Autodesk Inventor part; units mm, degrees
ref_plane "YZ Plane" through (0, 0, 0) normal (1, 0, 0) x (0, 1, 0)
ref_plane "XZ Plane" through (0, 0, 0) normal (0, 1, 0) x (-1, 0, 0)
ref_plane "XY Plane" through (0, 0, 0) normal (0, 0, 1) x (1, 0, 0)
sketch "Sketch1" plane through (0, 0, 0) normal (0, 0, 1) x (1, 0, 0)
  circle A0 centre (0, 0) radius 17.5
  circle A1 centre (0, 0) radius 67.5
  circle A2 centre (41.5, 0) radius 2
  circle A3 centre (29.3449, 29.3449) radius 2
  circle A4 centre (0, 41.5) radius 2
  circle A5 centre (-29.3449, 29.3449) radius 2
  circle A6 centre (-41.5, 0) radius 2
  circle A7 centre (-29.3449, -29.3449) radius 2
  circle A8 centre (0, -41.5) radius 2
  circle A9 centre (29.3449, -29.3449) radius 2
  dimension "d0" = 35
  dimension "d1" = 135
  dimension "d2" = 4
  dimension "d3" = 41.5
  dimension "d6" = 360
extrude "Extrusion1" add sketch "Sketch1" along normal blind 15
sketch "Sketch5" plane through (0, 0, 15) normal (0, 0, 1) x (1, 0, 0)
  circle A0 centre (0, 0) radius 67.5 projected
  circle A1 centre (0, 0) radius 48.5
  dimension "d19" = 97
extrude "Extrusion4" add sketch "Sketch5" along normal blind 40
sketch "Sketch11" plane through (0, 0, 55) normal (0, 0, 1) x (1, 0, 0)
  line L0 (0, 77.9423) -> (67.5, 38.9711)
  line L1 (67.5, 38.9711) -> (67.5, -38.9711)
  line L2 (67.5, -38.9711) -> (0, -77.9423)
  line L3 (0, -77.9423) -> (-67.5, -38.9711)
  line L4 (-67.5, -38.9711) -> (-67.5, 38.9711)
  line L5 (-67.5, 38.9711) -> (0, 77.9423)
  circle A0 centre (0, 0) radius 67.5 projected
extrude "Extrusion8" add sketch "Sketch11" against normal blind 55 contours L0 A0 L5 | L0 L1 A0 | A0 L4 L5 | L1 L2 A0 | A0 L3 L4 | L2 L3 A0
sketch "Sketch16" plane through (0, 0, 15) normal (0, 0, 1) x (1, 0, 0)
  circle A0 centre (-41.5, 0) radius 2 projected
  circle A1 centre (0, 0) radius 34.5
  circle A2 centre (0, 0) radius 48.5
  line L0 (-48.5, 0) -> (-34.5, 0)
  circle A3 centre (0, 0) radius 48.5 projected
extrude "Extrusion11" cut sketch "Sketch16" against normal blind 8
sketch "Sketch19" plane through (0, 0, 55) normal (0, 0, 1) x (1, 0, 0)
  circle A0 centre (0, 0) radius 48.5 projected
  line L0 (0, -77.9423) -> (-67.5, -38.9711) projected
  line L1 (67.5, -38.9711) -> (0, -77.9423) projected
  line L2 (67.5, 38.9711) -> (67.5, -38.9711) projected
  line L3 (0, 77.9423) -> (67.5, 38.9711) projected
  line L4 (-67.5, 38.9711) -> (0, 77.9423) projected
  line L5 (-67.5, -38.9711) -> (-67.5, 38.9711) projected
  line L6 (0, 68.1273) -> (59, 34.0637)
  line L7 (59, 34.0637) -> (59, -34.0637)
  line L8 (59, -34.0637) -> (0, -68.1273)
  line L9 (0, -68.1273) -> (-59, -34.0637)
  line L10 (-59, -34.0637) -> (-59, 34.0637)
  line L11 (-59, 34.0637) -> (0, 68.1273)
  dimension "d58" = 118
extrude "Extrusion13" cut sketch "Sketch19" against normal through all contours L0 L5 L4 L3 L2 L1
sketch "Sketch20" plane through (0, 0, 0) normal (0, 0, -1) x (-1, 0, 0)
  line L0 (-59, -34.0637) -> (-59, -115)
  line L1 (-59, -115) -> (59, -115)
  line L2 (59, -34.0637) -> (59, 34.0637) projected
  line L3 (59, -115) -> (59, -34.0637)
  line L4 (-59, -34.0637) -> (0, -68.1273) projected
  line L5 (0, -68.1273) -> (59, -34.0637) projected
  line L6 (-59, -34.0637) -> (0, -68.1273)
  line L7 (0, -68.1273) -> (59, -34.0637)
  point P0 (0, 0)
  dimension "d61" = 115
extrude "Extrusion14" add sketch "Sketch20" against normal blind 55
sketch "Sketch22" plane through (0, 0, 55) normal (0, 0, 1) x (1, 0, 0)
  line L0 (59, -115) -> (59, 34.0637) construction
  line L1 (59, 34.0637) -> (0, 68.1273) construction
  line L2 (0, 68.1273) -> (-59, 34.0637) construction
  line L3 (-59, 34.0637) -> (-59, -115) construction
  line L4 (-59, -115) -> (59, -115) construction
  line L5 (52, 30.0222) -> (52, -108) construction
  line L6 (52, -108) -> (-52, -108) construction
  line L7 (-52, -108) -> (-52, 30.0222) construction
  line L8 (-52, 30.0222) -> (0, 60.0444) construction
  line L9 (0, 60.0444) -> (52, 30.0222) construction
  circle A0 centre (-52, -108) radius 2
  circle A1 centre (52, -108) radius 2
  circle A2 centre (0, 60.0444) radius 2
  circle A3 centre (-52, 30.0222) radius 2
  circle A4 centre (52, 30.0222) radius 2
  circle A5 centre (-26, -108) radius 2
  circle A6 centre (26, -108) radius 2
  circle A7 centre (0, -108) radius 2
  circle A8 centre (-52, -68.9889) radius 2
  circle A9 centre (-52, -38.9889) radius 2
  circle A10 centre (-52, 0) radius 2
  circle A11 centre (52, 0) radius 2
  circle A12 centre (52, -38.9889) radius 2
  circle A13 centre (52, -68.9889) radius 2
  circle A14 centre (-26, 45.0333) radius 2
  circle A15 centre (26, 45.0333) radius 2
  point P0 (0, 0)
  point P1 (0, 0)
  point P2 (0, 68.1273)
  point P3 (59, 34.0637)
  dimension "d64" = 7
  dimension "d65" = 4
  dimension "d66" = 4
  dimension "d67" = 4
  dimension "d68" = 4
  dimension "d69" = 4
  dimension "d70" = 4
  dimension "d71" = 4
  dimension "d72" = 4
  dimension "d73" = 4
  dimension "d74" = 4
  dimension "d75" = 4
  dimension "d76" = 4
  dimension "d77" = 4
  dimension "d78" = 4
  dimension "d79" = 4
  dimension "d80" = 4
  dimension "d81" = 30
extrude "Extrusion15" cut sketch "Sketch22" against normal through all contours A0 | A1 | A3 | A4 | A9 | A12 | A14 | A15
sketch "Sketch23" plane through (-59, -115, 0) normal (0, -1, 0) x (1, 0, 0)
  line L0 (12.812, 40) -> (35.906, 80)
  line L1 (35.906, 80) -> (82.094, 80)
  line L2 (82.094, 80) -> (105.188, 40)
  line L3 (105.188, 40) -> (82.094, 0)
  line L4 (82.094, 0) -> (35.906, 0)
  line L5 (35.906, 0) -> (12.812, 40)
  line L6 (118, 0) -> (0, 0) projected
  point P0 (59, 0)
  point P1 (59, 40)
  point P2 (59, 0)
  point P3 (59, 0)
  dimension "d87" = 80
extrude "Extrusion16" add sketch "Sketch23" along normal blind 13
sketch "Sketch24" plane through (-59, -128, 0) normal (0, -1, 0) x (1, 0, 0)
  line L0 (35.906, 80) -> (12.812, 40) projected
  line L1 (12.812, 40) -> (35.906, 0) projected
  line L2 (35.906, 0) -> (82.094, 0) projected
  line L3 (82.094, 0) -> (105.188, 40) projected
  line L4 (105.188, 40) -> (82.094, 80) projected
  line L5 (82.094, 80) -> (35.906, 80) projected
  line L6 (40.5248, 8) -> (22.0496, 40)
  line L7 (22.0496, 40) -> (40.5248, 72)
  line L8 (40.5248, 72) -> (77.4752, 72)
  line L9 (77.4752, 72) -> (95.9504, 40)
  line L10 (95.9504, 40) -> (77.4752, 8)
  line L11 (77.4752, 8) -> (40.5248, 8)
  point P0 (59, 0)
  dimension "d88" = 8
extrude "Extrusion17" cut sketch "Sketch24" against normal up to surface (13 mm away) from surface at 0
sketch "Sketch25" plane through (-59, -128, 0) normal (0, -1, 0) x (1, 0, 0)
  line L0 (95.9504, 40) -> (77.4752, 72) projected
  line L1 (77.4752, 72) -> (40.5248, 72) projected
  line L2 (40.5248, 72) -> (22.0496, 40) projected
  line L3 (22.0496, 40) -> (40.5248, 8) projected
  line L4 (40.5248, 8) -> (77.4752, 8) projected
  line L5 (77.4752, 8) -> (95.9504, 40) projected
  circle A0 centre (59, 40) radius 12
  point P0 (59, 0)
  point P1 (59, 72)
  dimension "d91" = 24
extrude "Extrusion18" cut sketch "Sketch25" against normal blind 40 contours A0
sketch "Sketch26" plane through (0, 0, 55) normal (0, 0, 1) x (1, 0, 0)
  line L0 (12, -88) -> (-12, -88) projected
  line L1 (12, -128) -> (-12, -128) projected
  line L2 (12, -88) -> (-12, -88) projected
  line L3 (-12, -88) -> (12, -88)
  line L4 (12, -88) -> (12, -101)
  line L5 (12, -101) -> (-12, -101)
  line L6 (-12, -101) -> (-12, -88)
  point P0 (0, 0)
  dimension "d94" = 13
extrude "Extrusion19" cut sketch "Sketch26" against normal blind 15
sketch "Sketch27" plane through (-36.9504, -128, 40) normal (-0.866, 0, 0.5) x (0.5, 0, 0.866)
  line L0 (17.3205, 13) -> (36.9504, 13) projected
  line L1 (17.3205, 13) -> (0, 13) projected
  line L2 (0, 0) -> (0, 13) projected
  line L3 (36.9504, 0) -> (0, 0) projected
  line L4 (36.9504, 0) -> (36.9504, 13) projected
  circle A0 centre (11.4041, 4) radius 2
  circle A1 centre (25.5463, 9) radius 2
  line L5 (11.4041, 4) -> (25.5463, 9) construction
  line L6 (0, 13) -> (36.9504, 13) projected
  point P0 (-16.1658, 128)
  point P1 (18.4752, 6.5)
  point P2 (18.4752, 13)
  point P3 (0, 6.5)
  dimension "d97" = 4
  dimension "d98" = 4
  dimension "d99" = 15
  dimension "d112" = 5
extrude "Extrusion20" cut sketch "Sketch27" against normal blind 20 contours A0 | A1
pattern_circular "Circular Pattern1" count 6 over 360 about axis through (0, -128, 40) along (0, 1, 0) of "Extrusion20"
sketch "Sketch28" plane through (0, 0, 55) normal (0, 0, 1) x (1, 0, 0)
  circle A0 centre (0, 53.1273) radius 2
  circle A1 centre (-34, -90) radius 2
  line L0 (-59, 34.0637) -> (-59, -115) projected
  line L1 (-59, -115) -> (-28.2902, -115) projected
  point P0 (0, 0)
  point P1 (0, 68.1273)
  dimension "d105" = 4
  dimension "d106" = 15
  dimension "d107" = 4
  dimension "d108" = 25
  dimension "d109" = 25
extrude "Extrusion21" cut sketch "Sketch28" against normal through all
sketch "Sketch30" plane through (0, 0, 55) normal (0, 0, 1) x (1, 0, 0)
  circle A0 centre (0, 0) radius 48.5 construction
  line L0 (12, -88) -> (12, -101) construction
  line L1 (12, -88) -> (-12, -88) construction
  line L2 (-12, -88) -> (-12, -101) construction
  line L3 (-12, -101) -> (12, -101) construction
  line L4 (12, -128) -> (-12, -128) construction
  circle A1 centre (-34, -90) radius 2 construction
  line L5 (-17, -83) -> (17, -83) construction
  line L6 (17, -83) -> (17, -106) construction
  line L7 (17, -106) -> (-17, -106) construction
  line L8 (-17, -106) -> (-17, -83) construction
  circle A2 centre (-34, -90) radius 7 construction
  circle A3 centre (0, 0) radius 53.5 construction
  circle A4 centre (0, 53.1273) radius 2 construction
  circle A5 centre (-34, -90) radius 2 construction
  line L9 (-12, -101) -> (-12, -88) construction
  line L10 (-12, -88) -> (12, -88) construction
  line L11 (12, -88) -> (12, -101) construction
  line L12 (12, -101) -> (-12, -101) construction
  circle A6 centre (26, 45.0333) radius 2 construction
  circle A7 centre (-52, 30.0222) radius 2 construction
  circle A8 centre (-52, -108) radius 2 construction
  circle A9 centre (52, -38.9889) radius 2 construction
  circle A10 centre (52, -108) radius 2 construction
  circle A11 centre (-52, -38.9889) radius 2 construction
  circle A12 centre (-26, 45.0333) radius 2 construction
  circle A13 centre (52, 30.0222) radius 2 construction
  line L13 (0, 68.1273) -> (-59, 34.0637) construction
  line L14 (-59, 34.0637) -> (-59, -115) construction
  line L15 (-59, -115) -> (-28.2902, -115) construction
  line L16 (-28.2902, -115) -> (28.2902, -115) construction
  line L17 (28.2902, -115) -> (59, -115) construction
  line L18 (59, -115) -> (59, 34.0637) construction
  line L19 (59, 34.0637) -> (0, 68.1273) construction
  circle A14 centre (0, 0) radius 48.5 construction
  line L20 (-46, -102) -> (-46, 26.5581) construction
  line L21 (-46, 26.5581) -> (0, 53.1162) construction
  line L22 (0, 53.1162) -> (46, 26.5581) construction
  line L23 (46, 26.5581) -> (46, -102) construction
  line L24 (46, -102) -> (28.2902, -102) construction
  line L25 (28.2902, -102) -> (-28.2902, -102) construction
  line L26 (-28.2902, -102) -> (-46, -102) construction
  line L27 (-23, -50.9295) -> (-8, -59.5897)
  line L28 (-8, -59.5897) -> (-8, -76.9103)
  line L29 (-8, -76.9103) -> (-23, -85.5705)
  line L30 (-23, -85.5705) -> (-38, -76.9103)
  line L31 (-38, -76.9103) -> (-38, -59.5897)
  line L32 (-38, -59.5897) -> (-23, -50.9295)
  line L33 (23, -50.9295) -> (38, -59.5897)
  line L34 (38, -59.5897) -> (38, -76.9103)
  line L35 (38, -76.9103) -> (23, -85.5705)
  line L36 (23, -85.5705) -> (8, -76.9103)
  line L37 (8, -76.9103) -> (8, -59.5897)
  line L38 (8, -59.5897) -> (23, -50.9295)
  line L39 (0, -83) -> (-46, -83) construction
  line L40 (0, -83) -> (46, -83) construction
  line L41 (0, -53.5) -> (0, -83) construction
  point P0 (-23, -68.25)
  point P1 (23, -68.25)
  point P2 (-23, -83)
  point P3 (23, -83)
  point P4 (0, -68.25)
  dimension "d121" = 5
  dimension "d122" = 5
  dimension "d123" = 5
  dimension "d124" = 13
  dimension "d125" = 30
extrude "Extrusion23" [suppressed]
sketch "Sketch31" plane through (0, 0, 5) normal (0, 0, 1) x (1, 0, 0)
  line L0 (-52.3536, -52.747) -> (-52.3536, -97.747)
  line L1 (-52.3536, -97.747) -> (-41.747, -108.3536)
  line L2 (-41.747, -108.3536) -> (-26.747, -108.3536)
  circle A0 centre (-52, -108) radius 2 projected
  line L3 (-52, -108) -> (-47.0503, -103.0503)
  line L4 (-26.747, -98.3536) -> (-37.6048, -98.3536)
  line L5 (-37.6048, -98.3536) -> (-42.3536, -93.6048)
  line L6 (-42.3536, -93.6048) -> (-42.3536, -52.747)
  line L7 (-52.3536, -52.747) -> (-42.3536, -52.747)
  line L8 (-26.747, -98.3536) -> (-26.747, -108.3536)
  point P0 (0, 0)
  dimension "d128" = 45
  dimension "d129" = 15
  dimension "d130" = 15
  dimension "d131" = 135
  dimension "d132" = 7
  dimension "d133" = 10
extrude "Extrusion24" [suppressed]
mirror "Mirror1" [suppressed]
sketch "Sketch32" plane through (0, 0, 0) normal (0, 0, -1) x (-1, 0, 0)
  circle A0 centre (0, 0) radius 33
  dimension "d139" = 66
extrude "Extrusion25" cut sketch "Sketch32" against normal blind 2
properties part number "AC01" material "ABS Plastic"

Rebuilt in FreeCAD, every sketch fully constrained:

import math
import FreeCAD as App
import Part
import Sketcher
from FreeCAD import Vector
Q = App.Units.Quantity

doc = App.newDocument("Part")
body = doc.addObject("PartDesign::Body", "Body")

sketch1 = doc.addObject("Sketcher::SketchObject", "Sketch")
body.addObject(sketch1)
sketch1.AttachmentSupport = (doc.XY_Plane, [""])
sketch1.MapMode = "FlatFace"
sketch1.addGeometry([
    Part.Circle(Vector(0, 0, 0), Vector(0, 0, 1), 67.5),
    Part.Circle(Vector(-29.3, -29.3, 0), Vector(0, 0, 1), 2),
    Part.Circle(Vector(0, -41.5, 0), Vector(0, 0, 1), 2),
    Part.Circle(Vector(29.3, -29.3, 0), Vector(0, 0, 1), 2),
    Part.Circle(Vector(-41.5, 0, 0), Vector(0, 0, 1), 2),
    Part.Circle(Vector(-29.3, 29.3, 0), Vector(0, 0, 1), 2),
    Part.Circle(Vector(0, 0, 0), Vector(0, 0, 1), 17.5),
    Part.Circle(Vector(29.3, 29.3, 0), Vector(0, 0, 1), 2),
    Part.Circle(Vector(41.5, 0, 0), Vector(0, 0, 1), 2),
    Part.Circle(Vector(0, 41.5, 0), Vector(0, 0, 1), 2),
], False)
sketch1.addConstraint([
    Sketcher.Constraint("Coincident", 0, 3, -1, 1),
    Sketcher.Constraint("Coincident", 6, 3, -1, 1),
    Sketcher.Constraint("Equal", 1, 2),
    Sketcher.Constraint("Equal", 2, 3),
    Sketcher.Constraint("Equal", 3, 4),
    Sketcher.Constraint("Equal", 4, 5),
    Sketcher.Constraint("Equal", 5, 7),
    Sketcher.Constraint("Equal", 7, 8),
    Sketcher.Constraint("Equal", 8, 9),
    Sketcher.Constraint("Symmetric", 3, 3, 5, 3, -1, 1),
    Sketcher.Constraint("Symmetric", 1, 3, 7, 3, -1, 1),
    Sketcher.Constraint("Symmetric", 4, 3, 8, 3, -1, 1),
    Sketcher.Constraint("Symmetric", 2, 3, 9, 3, -1, 1),
    Sketcher.Constraint("Symmetric", 1, 3, 3, 3, -2),
    Sketcher.Constraint("PointOnObject", 2, 3, -2),
    Sketcher.Constraint("PointOnObject", 4, 3, -1),
    Sketcher.Constraint("Diameter", 0, Q("135 mm")),
    Sketcher.Constraint("Diameter", 1, Q("4 mm")),
    Sketcher.Constraint("Diameter", 6, Q("35 mm")),
    Sketcher.Constraint("DistanceY", 2, 3, -1, 1, Q("41.5 mm")),
    Sketcher.Constraint("DistanceX", 4, 3, -1, 1, Q("41.5 mm")),
    Sketcher.Constraint("DistanceX", 1, 3, -1, 1, Q("29.345 mm")),
    Sketcher.Constraint("DistanceY", 1, 3, -1, 1, Q("29.345 mm")),
])
pad1 = doc.addObject("PartDesign::Pad", "Pad")
body.addObject(pad1)
pad1.Profile = sketch1
pad1.Length = 15

sketch2 = doc.addObject("Sketcher::SketchObject", "Sketch001")
body.addObject(sketch2)
sketch2.AttachmentSupport = (doc.XY_Plane, [""])
sketch2.MapMode = "FlatFace"
sketch2.AttachmentOffset = App.Placement(Vector(0, 0, 15), App.Rotation())
sketch2.addGeometry([
    Part.Circle(Vector(0, 0, 0), Vector(0, 0, 1), 68),
    Part.Circle(Vector(0, 0, 0), Vector(0, 0, 1), 48),
], False)
sketch2.addConstraint([
    Sketcher.Constraint("Coincident", 0, 3, -1, 1),
    Sketcher.Constraint("Coincident", 1, 3, -1, 1),
    Sketcher.Constraint("Diameter", 1, Q("97 mm")),
    Sketcher.Constraint("Diameter", 0, Q("135 mm")),
])
pad2 = doc.addObject("PartDesign::Pad", "Pad001")
body.addObject(pad2)
pad2.Profile = sketch2
pad2.Length = 40

sketch3 = doc.addObject("Sketcher::SketchObject", "Sketch002")
body.addObject(sketch3)
sketch3.AttachmentSupport = (doc.XY_Plane, [""])
sketch3.MapMode = "FlatFace"
sketch3.AttachmentOffset = App.Placement(Vector(0, 0, 55), App.Rotation())
sketch3.addGeometry([
    Part.LineSegment(Vector(34, 58, 0), Vector(0, 78, 0)),
    Part.LineSegment(Vector(0, 78, 0), Vector(-34, 58, 0)),
    Part.ArcOfCircle(Part.Circle(Vector(0, 0, 0), Vector(0, 0, 1), 68), math.radians(60), math.radians(120)),
    Part.LineSegment(Vector(68, 39, 0), Vector(34, 58, 0)),
    Part.ArcOfCircle(Part.Circle(Vector(0, 0, 0), Vector(0, 0, 1), 68), math.radians(0), math.radians(60)),
    Part.LineSegment(Vector(68, 0, 0), Vector(68, 39, 0)),
    Part.ArcOfCircle(Part.Circle(Vector(0, 0, 0), Vector(0, 0, 1), 68), math.radians(120), math.radians(180)),
    Part.LineSegment(Vector(-34, 58, 0), Vector(-68, 39, 0)),
    Part.LineSegment(Vector(-68, 39, 0), Vector(-68, 0, 0)),
    Part.LineSegment(Vector(68, -39, 0), Vector(68, 0, 0)),
    Part.ArcOfCircle(Part.Circle(Vector(0, 0, 0), Vector(0, 0, 1), 68), math.radians(-60), math.radians(0)),
    Part.LineSegment(Vector(34, -58, 0), Vector(68, -39, 0)),
    Part.ArcOfCircle(Part.Circle(Vector(0, 0, 0), Vector(0, 0, 1), 68), math.radians(-180), math.radians(-120)),
    Part.LineSegment(Vector(-68, 0, 0), Vector(-68, -39, 0)),
    Part.LineSegment(Vector(-68, -39, 0), Vector(-34, -58, 0)),
    Part.LineSegment(Vector(0, -78, 0), Vector(34, -58, 0)),
    Part.ArcOfCircle(Part.Circle(Vector(0, 0, 0), Vector(0, 0, 1), 68), math.radians(-120), math.radians(-60)),
    Part.LineSegment(Vector(-34, -58, 0), Vector(0, -78, 0)),
], False)
sketch3.addConstraint([
    Sketcher.Constraint("Coincident", 0, 2, 1, 1),
    Sketcher.Constraint("Tangent", 1, 2, 2, 2),
    Sketcher.Constraint("Tangent", 2, 1, 0, 1),
    Sketcher.Constraint("Tangent", 3, 2, 4, 2),
    Sketcher.Constraint("Tangent", 4, 1, 5, 1),
    Sketcher.Constraint("Coincident", 5, 2, 3, 1),
    Sketcher.Constraint("Tangent", 6, 1, 7, 1),
    Sketcher.Constraint("Coincident", 7, 2, 8, 1),
    Sketcher.Constraint("Tangent", 8, 2, 6, 2),
    Sketcher.Constraint("Tangent", 9, 2, 10, 2),
    Sketcher.Constraint("Tangent", 10, 1, 11, 1),
    Sketcher.Constraint("Coincident", 11, 2, 9, 1),
    Sketcher.Constraint("Tangent", 12, 1, 13, 1),
    Sketcher.Constraint("Coincident", 13, 2, 14, 1),
    Sketcher.Constraint("Tangent", 14, 2, 12, 2),
    Sketcher.Constraint("Tangent", 15, 2, 16, 2),
    Sketcher.Constraint("Tangent", 16, 1, 17, 1),
    Sketcher.Constraint("Coincident", 17, 2, 15, 1),
    Sketcher.Constraint("Vertical", 5),
    Sketcher.Constraint("Vertical", 8),
    Sketcher.Constraint("Vertical", 9),
    Sketcher.Constraint("Vertical", 13),
    Sketcher.Constraint("Coincident", 2, 3, -1, 1),
    Sketcher.Constraint("Coincident", 4, 3, -1, 1),
    Sketcher.Constraint("Coincident", 6, 3, -1, 1),
    Sketcher.Constraint("Coincident", 10, 3, -1, 1),
    Sketcher.Constraint("Coincident", 12, 3, -1, 1),
    Sketcher.Constraint("Coincident", 16, 3, -1, 1),
    Sketcher.Constraint("Coincident", 3, 2, 2, 1),
    Sketcher.Constraint("Coincident", 6, 1, 1, 2),
    Sketcher.Constraint("Coincident", 15, 2, 10, 1),
    Sketcher.Constraint("Coincident", 16, 1, 14, 2),
    Sketcher.Constraint("Equal", 6, 10),
    Sketcher.Constraint("Symmetric", 0, 2, 17, 2, -1, 1),
    Sketcher.Constraint("PointOnObject", 0, 2, -2),
    Sketcher.Constraint("Equal", 1, 3),
    Sketcher.Constraint("Radius", 2, Q("67.5 mm")),
])
pad3 = doc.addObject("PartDesign::Pad", "Pad002")
body.addObject(pad3)
pad3.Profile = sketch3
pad3.Length = 55
pad3.Reversed = True

sketch4 = doc.addObject("Sketcher::SketchObject", "Sketch003")
body.addObject(sketch4)
sketch4.AttachmentSupport = (doc.XY_Plane, [""])
sketch4.MapMode = "FlatFace"
sketch4.AttachmentOffset = App.Placement(Vector(0, 0, 15), App.Rotation())
sketch4.addGeometry([
    Part.Circle(Vector(0, 0, 0), Vector(0, 0, 1), 48.5),
    Part.ArcOfCircle(Part.Circle(Vector(-41.5, 0, 0), Vector(0, 0, 1), 2), math.radians(0), math.radians(180)),
    Part.ArcOfCircle(Part.Circle(Vector(-41.5, 0, 0), Vector(0, 0, 1), 2), math.radians(180), math.radians(360)),
    Part.Circle(Vector(0, 0, 0), Vector(0, 0, 1), 34.5),
], False)
sketch4.addConstraint([
    Sketcher.Constraint("Tangent", 1, 1, 2, 2),
    Sketcher.Constraint("Coincident", 2, 1, 1, 2),
    Sketcher.Constraint("Coincident", 0, 3, -1, 1),
    Sketcher.Constraint("Coincident", 3, 3, -1, 1),
    Sketcher.Constraint("PointOnObject", 1, 3, -1),
    Sketcher.Constraint("PointOnObject", 1, 1, -1),
    Sketcher.Constraint("PointOnObject", 2, 1, -1),
    Sketcher.Constraint("Diameter", 0, Q("97 mm")),
    Sketcher.Constraint("Diameter", 3, Q("69 mm")),
    Sketcher.Constraint("Radius", 1, Q("2 mm")),
    Sketcher.Constraint("DistanceX", 1, 3, -1, 1, Q("41.5 mm")),
])
pocket1 = doc.addObject("PartDesign::Pocket", "Pocket")
body.addObject(pocket1)
pocket1.Profile = sketch4
pocket1.Length = 8

sketch5 = doc.addObject("Sketcher::SketchObject", "Sketch004")
body.addObject(sketch5)
sketch5.AttachmentSupport = (doc.XY_Plane, [""])
sketch5.MapMode = "FlatFace"
sketch5.AttachmentOffset = App.Placement(Vector(0, 0, 55), App.Rotation())
sketch5.addGeometry([
    Part.LineSegment(Vector(-68, -39, 0), Vector(0, -78, 0)),
    Part.LineSegment(Vector(0, -78, 0), Vector(68, -39, 0)),
    Part.LineSegment(Vector(68, -39, 0), Vector(68, 39, 0)),
    Part.LineSegment(Vector(68, 39, 0), Vector(0, 78, 0)),
    Part.LineSegment(Vector(0, 78, 0), Vector(-68, 39, 0)),
    Part.LineSegment(Vector(-68, 39, 0), Vector(-68, -39, 0)),
    Part.LineSegment(Vector(-59, 34, 0), Vector(0, 68, 0)),
    Part.LineSegment(Vector(0, 68, 0), Vector(59, 34, 0)),
    Part.LineSegment(Vector(59, 34, 0), Vector(59, -34, 0)),
    Part.LineSegment(Vector(59, -34, 0), Vector(0, -68, 0)),
    Part.LineSegment(Vector(0, -68, 0), Vector(-59, -34, 0)),
    Part.LineSegment(Vector(-59, -34, 0), Vector(-59, 34, 0)),
], False)
sketch5.addConstraint([
    Sketcher.Constraint("Coincident", 0, 2, 1, 1),
    Sketcher.Constraint("Coincident", 1, 2, 2, 1),
    Sketcher.Constraint("Coincident", 2, 2, 3, 1),
    Sketcher.Constraint("Coincident", 3, 2, 4, 1),
    Sketcher.Constraint("Coincident", 4, 2, 5, 1),
    Sketcher.Constraint("Coincident", 5, 2, 0, 1),
    Sketcher.Constraint("Coincident", 6, 2, 7, 1),
    Sketcher.Constraint("Coincident", 7, 2, 8, 1),
    Sketcher.Constraint("Coincident", 8, 2, 9, 1),
    Sketcher.Constraint("Coincident", 9, 2, 10, 1),
    Sketcher.Constraint("Coincident", 10, 2, 11, 1),
    Sketcher.Constraint("Coincident", 11, 2, 6, 1),
    Sketcher.Constraint("Vertical", 2),
    Sketcher.Constraint("Vertical", 5),
    Sketcher.Constraint("Vertical", 8),
    Sketcher.Constraint("Vertical", 11),
    Sketcher.Constraint("Symmetric", 0, 2, 3, 2, -1, 1),
    Sketcher.Constraint("Symmetric", 1, 2, 4, 2, -1, 1),
    Sketcher.Constraint("Symmetric", 6, 2, 9, 2, -1, 1),
    Sketcher.Constraint("Symmetric", 7, 2, 10, 2, -1, 1),
    Sketcher.Constraint("PointOnObject", 0, 2, -2),
    Sketcher.Constraint("PointOnObject", 6, 2, -2),
    Sketcher.Constraint("Parallel", 0, 3),
    Sketcher.Constraint("Parallel", 4, 6),
    Sketcher.Constraint("Parallel", 3, 7),
    Sketcher.Constraint("Parallel", 6, 9),
    Sketcher.Constraint("Horizontal", 2, 2, 4, 2),
    Sketcher.Constraint("DistanceX", 10, 2, 8, 2, Q("118 mm")),
    Sketcher.Constraint("Angle", 0, Q("-30 deg")),
    Sketcher.Constraint("DistanceX", 4, 2, 2, 2, Q("135 mm")),
    Sketcher.Constraint("DistanceY", 2, 1, 2, 2, Q("77.9422 mm")),
    Sketcher.Constraint("DistanceY", 8, 2, 8, 1, Q("68.1274 mm")),
])
pocket2 = doc.addObject("PartDesign::Pocket", "Pocket001")
body.addObject(pocket2)
pocket2.Profile = sketch5
pocket2.Type = "ThroughAll"

sketch6 = doc.addObject("Sketcher::SketchObject", "Sketch005")
body.addObject(sketch6)
sketch6.AttachmentSupport = (doc.XY_Plane, [""])
sketch6.MapMode = "FlatFace"
sketch6.addGeometry([
    Part.LineSegment(Vector(0, -68, 0), Vector(59, -34, 0)),
    Part.LineSegment(Vector(59, -34, 0), Vector(59, -115, 0)),
    Part.LineSegment(Vector(59, -115, 0), Vector(-59, -115, 0)),
    Part.LineSegment(Vector(-59, -115, 0), Vector(-59, -34, 0)),
    Part.LineSegment(Vector(-59, -34, 0), Vector(0, -68, 0)),
], False)
sketch6.addConstraint([
    Sketcher.Constraint("Coincident", 0, 2, 1, 1),
    Sketcher.Constraint("Coincident", 1, 2, 2, 1),
    Sketcher.Constraint("Coincident", 2, 2, 3, 1),
    Sketcher.Constraint("Coincident", 3, 2, 4, 1),
    Sketcher.Constraint("Coincident", 4, 2, 0, 1),
    Sketcher.Constraint("Vertical", 1),
    Sketcher.Constraint("Horizontal", 2),
    Sketcher.Constraint("Vertical", 3),
    Sketcher.Constraint("Symmetric", 0, 2, 3, 2, -2),
    Sketcher.Constraint("PointOnObject", 4, 2, -2),
    Sketcher.Constraint("DistanceY", 1, 2, -1, 1, Q("115 mm")),
    Sketcher.Constraint("DistanceX", 2, 2, 2, 1, Q("118 mm")),
    Sketcher.Constraint("Angle", 0, Q("30 deg")),
    Sketcher.Constraint("DistanceY", 1, 2, 1, 1, Q("80.9363 mm")),
])
pad4 = doc.addObject("PartDesign::Pad", "Pad003")
body.addObject(pad4)
pad4.Profile = sketch6
pad4.Length = 55

sketch7 = doc.addObject("Sketcher::SketchObject", "Sketch006")
body.addObject(sketch7)
sketch7.AttachmentSupport = (doc.XY_Plane, [""])
sketch7.MapMode = "FlatFace"
sketch7.AttachmentOffset = App.Placement(Vector(0, 0, 55), App.Rotation())
sketch7.addGeometry([
    Part.Circle(Vector(-52, -108, 0), Vector(0, 0, 1), 2),
    Part.Circle(Vector(52, -108, 0), Vector(0, 0, 1), 2),
    Part.Circle(Vector(-52, 30, 0), Vector(0, 0, 1), 2),
    Part.Circle(Vector(52, 30, 0), Vector(0, 0, 1), 2),
    Part.Circle(Vector(-52, -39, 0), Vector(0, 0, 1), 2),
    Part.Circle(Vector(52, -39, 0), Vector(0, 0, 1), 2),
    Part.Circle(Vector(-26, 45, 0), Vector(0, 0, 1), 2),
    Part.Circle(Vector(26, 45, 0), Vector(0, 0, 1), 2),
], False)
sketch7.addConstraint([
    Sketcher.Constraint("Equal", 0, 1),
    Sketcher.Constraint("Equal", 1, 2),
    Sketcher.Constraint("Equal", 2, 3),
    Sketcher.Constraint("Equal", 3, 4),
    Sketcher.Constraint("Equal", 4, 5),
    Sketcher.Constraint("Equal", 5, 6),
    Sketcher.Constraint("Equal", 6, 7),
    Sketcher.Constraint("Symmetric", 0, 3, 1, 3, -2),
    Sketcher.Constraint("Symmetric", 2, 3, 3, 3, -2),
    Sketcher.Constraint("Symmetric", 4, 3, 5, 3, -2),
    Sketcher.Constraint("Symmetric", 6, 3, 7, 3, -2),
    Sketcher.Constraint("Vertical", 0, 3, 2, 3),
    Sketcher.Constraint("Vertical", 2, 3, 4, 3),
    Sketcher.Constraint("Diameter", 0, Q("4 mm")),
    Sketcher.Constraint("DistanceX", 0, 3, -1, 1, Q("52 mm")),
    Sketcher.Constraint("DistanceY", 0, 3, -1, 1, Q("108 mm")),
    Sketcher.Constraint("DistanceX", 6, 3, -1, 1, Q("26 mm")),
    Sketcher.Constraint("DistanceY", 4, 3, -1, 1, Q("38.989 mm")),
    Sketcher.Constraint("DistanceY", 4, 3, 2, 3, Q("69.011 mm")),
    Sketcher.Constraint("DistanceY", 2, 3, 6, 3, Q("15.011 mm")),
])
pocket3 = doc.addObject("PartDesign::Pocket", "Pocket002")
body.addObject(pocket3)
pocket3.Profile = sketch7
pocket3.Type = "ThroughAll"

sketch8 = doc.addObject("Sketcher::SketchObject", "Sketch007")
body.addObject(sketch8)
sketch8.AttachmentSupport = (doc.XZ_Plane, [""])
sketch8.MapMode = "FlatFace"
sketch8.AttachmentOffset = App.Placement(Vector(0, 0, 115), App.Rotation())
sketch8.addGeometry([
    Part.LineSegment(Vector(-23, 80, 0), Vector(-46, 40, 0)),
    Part.LineSegment(Vector(-46, 40, 0), Vector(-23, 0, 0)),
    Part.LineSegment(Vector(-23, 0, 0), Vector(23, 0, 0)),
    Part.LineSegment(Vector(23, 0, 0), Vector(46, 40, 0)),
    Part.LineSegment(Vector(46, 40, 0), Vector(23, 80, 0)),
    Part.LineSegment(Vector(23, 80, 0), Vector(-23, 80, 0)),
], False)
sketch8.addConstraint([
    Sketcher.Constraint("Coincident", 0, 2, 1, 1),
    Sketcher.Constraint("Coincident", 1, 2, 2, 1),
    Sketcher.Constraint("Coincident", 2, 2, 3, 1),
    Sketcher.Constraint("Coincident", 3, 2, 4, 1),
    Sketcher.Constraint("Coincident", 4, 2, 5, 1),
    Sketcher.Constraint("Coincident", 5, 2, 0, 1),
    Sketcher.Constraint("Horizontal", 2),
    Sketcher.Constraint("Horizontal", 5),
    Sketcher.Constraint("Symmetric", 1, 2, 2, 2, -1, 1),
    Sketcher.Constraint("Symmetric", 0, 2, 3, 2, -2),
    Sketcher.Constraint("Parallel", 0, 3),
    Sketcher.Constraint("Parallel", 1, 4),
    Sketcher.Constraint("Vertical", 2, 2, 4, 2),
    Sketcher.Constraint("DistanceY", -1, 1, 4, 2, Q("80 mm")),
    Sketcher.Constraint("Angle", 0, Q("-120 deg")),
    Sketcher.Constraint("DistanceX", 2, 1, 2, 2, Q("46.188 mm")),
])
pad5 = doc.addObject("PartDesign::Pad", "Pad004")
body.addObject(pad5)
pad5.Profile = sketch8
pad5.Length = 13

sketch9 = doc.addObject("Sketcher::SketchObject", "Sketch008")
body.addObject(sketch9)
sketch9.AttachmentSupport = (doc.XZ_Plane, [""])
sketch9.MapMode = "FlatFace"
sketch9.AttachmentOffset = App.Placement(Vector(0, 0, 128), App.Rotation())
sketch9.addGeometry([
    Part.LineSegment(Vector(23, 80, 0), Vector(-23, 80, 0)),
    Part.LineSegment(Vector(-23, 80, 0), Vector(-46, 40, 0)),
    Part.LineSegment(Vector(-46, 40, 0), Vector(-23, 0, 0)),
    Part.LineSegment(Vector(-23, 0, 0), Vector(23, 0, 0)),
    Part.LineSegment(Vector(23, 0, 0), Vector(46, 40, 0)),
    Part.LineSegment(Vector(46, 40, 0), Vector(23, 80, 0)),
    Part.LineSegment(Vector(18, 8, 0), Vector(-18, 8, 0)),
    Part.LineSegment(Vector(-18, 8, 0), Vector(-37, 40, 0)),
    Part.LineSegment(Vector(-37, 40, 0), Vector(-18, 72, 0)),
    Part.LineSegment(Vector(-18, 72, 0), Vector(18, 72, 0)),
    Part.LineSegment(Vector(18, 72, 0), Vector(37, 40, 0)),
    Part.LineSegment(Vector(37, 40, 0), Vector(18, 8, 0)),
], False)
sketch9.addConstraint([
    Sketcher.Constraint("Coincident", 0, 2, 1, 1),
    Sketcher.Constraint("Coincident", 1, 2, 2, 1),
    Sketcher.Constraint("Coincident", 2, 2, 3, 1),
    Sketcher.Constraint("Coincident", 3, 2, 4, 1),
    Sketcher.Constraint("Coincident", 4, 2, 5, 1),
    Sketcher.Constraint("Coincident", 5, 2, 0, 1),
    Sketcher.Constraint("Coincident", 6, 2, 7, 1),
    Sketcher.Constraint("Coincident", 7, 2, 8, 1),
    Sketcher.Constraint("Coincident", 8, 2, 9, 1),
    Sketcher.Constraint("Coincident", 9, 2, 10, 1),
    Sketcher.Constraint("Coincident", 10, 2, 11, 1),
    Sketcher.Constraint("Coincident", 11, 2, 6, 1),
    Sketcher.Constraint("Horizontal", 0),
    Sketcher.Constraint("Horizontal", 3),
    Sketcher.Constraint("Horizontal", 6),
    Sketcher.Constraint("Horizontal", 9),
    Sketcher.Constraint("Symmetric", 2, 2, 3, 2, -1, 1),
    Sketcher.Constraint("Symmetric", 1, 2, 4, 2, -2),
    Sketcher.Constraint("Symmetric", 7, 2, 10, 2, -2),
    Sketcher.Constraint("Parallel", 1, 4),
    Sketcher.Constraint("Parallel", 2, 5),
    Sketcher.Constraint("Parallel", 5, 7),
    Sketcher.Constraint("Parallel", 4, 8),
    Sketcher.Constraint("Parallel", 7, 10),
    Sketcher.Constraint("Parallel", 8, 11),
    Sketcher.Constraint("Horizontal", 4, 2, 7, 2),
    Sketcher.Constraint("Vertical", 0, 2, 2, 2),
    Sketcher.Constraint("Vertical", 6, 2, 8, 2),
    Sketcher.Constraint("DistanceY", -1, 1, 6, 2, Q("8 mm")),
    Sketcher.Constraint("Angle", 1, Q("-120 deg")),
    Sketcher.Constraint("DistanceY", -1, 1, 0, 2, Q("80 mm")),
    Sketcher.Constraint("DistanceX", 0, 2, 0, 1, Q("46.188 mm")),
    Sketcher.Constraint("DistanceX", 6, 2, 6, 1, Q("36.9504 mm")),
])
pocket4 = doc.addObject("PartDesign::Pocket", "Pocket003")
body.addObject(pocket4)
pocket4.Profile = sketch9
pocket4.Length = 13

sketch10 = doc.addObject("Sketcher::SketchObject", "Sketch009")
body.addObject(sketch10)
sketch10.AttachmentSupport = (doc.XZ_Plane, [""])
sketch10.MapMode = "FlatFace"
sketch10.AttachmentOffset = App.Placement(Vector(0, 0, 128), App.Rotation())
sketch10.addGeometry(Part.Circle(Vector(0, 40, 0), Vector(0, 0, 1), 12), False)
sketch10.addConstraint([
    Sketcher.Constraint("PointOnObject", 0, 3, -2),
    Sketcher.Constraint("Diameter", 0, Q("24 mm")),
    Sketcher.Constraint("DistanceY", -1, 1, 0, 3, Q("40 mm")),
])
pocket5 = doc.addObject("PartDesign::Pocket", "Pocket004")
body.addObject(pocket5)
pocket5.Profile = sketch10
pocket5.Length = 40

sketch11 = doc.addObject("Sketcher::SketchObject", "Sketch010")
body.addObject(sketch11)
sketch11.AttachmentSupport = (doc.XY_Plane, [""])
sketch11.MapMode = "FlatFace"
sketch11.AttachmentOffset = App.Placement(Vector(0, 0, 55), App.Rotation())
sketch11.addGeometry([
    Part.LineSegment(Vector(12, -101, 0), Vector(12, -88, 0)),
    Part.LineSegment(Vector(12, -88, 0), Vector(-12, -88, 0)),
    Part.LineSegment(Vector(-12, -88, 0), Vector(-12, -101, 0)),
    Part.LineSegment(Vector(-12, -101, 0), Vector(12, -101, 0)),
], False)
sketch11.addConstraint([
    Sketcher.Constraint("Coincident", 0, 2, 1, 1),
    Sketcher.Constraint("Coincident", 1, 2, 2, 1),
    Sketcher.Constraint("Coincident", 2, 2, 3, 1),
    Sketcher.Constraint("Coincident", 3, 2, 0, 1),
    Sketcher.Constraint("Vertical", 0),
    Sketcher.Constraint("Horizontal", 1),
    Sketcher.Constraint("Vertical", 2),
    Sketcher.Constraint("Horizontal", 3),
    Sketcher.Constraint("DistanceY", 0, 1, 0, 2, Q("13 mm")),
    Sketcher.Constraint("DistanceX", 1, 2, 1, 1, Q("24 mm")),
    Sketcher.Constraint("DistanceX", -1, 1, 0, 2, Q("12 mm")),
    Sketcher.Constraint("DistanceY", 0, 2, -1, 1, Q("88 mm")),
])
pocket6 = doc.addObject("PartDesign::Pocket", "Pocket005")
body.addObject(pocket6)
pocket6.Profile = sketch11
pocket6.Length = 15

sketch12 = doc.addObject("Sketcher::SketchObject", "Sketch011")
body.addObject(sketch12)
sketch12.Placement = App.Placement(Vector(-36.9504, -128, 40), App.Rotation(Vector(0.5, 0, 0.866025404), Vector(0, 1, 0), Vector(-0.866025404, 0, 0.5), "ZXY"))
sketch12.addGeometry([
    Part.Circle(Vector(11.4, 4, 0), Vector(0, 0, 1), 2),
    Part.Circle(Vector(25.5, 9, 0), Vector(0, 0, 1), 2),
], False)
sketch12.addConstraint([
    Sketcher.Constraint("Equal", 0, 1),
    Sketcher.Constraint("Diameter", 0, Q("4 mm")),
    Sketcher.Constraint("DistanceY", -1, 1, 0, 3, Q("4 mm")),
    Sketcher.Constraint("DistanceY", 0, 3, 1, 3, Q("5 mm")),
    Sketcher.Constraint("DistanceX", -1, 1, 0, 3, Q("11.404 mm")),
    Sketcher.Constraint("DistanceX", -1, 1, 1, 3, Q("25.5463 mm")),
])
pocket7 = doc.addObject("PartDesign::Pocket", "Pocket006")
body.addObject(pocket7)
pocket7.Profile = sketch12
pocket7.Length = 20
doc.recompute()

datumline = doc.addObject("PartDesign::Line", "DatumLine")
body.addObject(datumline)
datumline.Placement = App.Placement(Vector(0, 0, 40), App.Rotation(Vector(0, 0, 1), Vector(0, 1, 0)))
polarpattern = doc.addObject("PartDesign::PolarPattern", "PolarPattern")
body.addObject(polarpattern)
polarpattern.Originals = [pocket7]
polarpattern.Axis = (datumline, [""])
polarpattern.Angle = 360
polarpattern.Occurrences = 6
body.Tip = polarpattern

sketch13 = doc.addObject("Sketcher::SketchObject", "Sketch012")
body.addObject(sketch13)
sketch13.AttachmentSupport = (doc.XY_Plane, [""])
sketch13.MapMode = "FlatFace"
sketch13.AttachmentOffset = App.Placement(Vector(0, 0, 55), App.Rotation())
sketch13.addGeometry([
    Part.Circle(Vector(0, 53.1, 0), Vector(0, 0, 1), 2),
    Part.Circle(Vector(-34, -90, 0), Vector(0, 0, 1), 2),
], False)
sketch13.addConstraint([
    Sketcher.Constraint("Equal", 0, 1),
    Sketcher.Constraint("PointOnObject", 0, 3, -2),
    Sketcher.Constraint("Diameter", 0, Q("4 mm")),
    Sketcher.Constraint("DistanceX", 1, 3, -1, 1, Q("34 mm")),
    Sketcher.Constraint("DistanceY", 1, 3, -1, 1, Q("90 mm")),
    Sketcher.Constraint("DistanceY", -1, 1, 0, 3, Q("53.1273 mm")),
])
pocket8 = doc.addObject("PartDesign::Pocket", "Pocket007")
body.addObject(pocket8)
pocket8.Profile = sketch13
pocket8.Type = "ThroughAll"

sketch14 = doc.addObject("Sketcher::SketchObject", "Sketch013")
body.addObject(sketch14)
sketch14.AttachmentSupport = (doc.XY_Plane, [""])
sketch14.MapMode = "FlatFace"
sketch14.addGeometry(Part.Circle(Vector(0, 0, 0), Vector(0, 0, 1), 33), False)
sketch14.addConstraint([
    Sketcher.Constraint("Coincident", 0, 3, -1, 1),
    Sketcher.Constraint("Diameter", 0, Q("66 mm")),
])
pocket9 = doc.addObject("PartDesign::Pocket", "Pocket008")
body.addObject(pocket9)
pocket9.Profile = sketch14
pocket9.Length = 2
pocket9.Reversed = True

doc.recompute()
